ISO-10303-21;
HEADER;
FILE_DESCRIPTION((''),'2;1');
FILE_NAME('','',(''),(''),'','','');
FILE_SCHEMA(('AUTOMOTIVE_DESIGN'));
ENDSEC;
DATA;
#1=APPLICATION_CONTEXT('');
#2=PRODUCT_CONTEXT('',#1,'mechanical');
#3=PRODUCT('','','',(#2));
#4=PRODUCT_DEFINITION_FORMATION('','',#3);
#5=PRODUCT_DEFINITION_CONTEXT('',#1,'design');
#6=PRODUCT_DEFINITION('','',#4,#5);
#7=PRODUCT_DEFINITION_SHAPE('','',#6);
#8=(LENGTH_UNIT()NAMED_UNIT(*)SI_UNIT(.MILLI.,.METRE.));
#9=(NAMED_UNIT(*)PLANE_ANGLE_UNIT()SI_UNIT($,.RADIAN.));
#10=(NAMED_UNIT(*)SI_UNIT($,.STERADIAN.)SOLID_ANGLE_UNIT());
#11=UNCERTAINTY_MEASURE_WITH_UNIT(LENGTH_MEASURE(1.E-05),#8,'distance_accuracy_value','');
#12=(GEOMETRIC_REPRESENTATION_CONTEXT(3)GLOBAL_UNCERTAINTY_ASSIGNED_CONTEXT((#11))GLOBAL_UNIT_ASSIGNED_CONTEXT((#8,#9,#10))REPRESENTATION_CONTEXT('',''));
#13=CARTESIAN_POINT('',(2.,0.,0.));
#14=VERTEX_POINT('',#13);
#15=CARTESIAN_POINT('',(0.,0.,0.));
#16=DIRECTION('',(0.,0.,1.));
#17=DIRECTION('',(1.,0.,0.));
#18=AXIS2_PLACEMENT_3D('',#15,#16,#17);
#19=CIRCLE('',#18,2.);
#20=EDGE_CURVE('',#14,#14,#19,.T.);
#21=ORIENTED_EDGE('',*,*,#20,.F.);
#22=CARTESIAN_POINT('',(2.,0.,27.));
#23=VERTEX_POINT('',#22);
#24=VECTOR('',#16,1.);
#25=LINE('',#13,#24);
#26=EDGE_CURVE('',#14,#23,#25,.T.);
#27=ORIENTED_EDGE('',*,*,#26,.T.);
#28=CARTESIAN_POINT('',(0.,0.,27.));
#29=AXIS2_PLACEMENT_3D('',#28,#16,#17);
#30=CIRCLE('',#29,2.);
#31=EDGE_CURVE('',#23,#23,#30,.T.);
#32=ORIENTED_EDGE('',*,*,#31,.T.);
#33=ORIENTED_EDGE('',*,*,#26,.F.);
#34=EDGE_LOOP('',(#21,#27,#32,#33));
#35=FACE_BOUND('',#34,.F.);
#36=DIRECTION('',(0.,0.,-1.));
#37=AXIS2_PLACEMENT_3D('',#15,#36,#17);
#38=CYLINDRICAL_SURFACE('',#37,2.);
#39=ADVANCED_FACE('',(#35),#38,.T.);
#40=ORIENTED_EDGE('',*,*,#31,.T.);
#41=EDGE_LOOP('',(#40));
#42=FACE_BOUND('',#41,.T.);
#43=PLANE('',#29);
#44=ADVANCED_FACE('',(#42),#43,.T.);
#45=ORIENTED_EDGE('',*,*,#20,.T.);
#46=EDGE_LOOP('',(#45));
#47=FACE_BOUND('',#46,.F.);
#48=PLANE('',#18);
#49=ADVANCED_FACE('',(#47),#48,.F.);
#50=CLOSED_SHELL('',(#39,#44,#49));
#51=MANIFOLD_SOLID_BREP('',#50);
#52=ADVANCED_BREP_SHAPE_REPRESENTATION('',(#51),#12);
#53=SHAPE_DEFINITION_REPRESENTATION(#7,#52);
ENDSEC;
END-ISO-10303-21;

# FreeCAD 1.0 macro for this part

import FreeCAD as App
import Part
import Sketcher
from FreeCAD import Vector
Q = App.Units.Quantity

doc = App.newDocument("Part")
body = doc.addObject("PartDesign::Body", "Body")

# Sketch on XY plane
sketch1 = body.newObject("Sketcher::SketchObject", "Sketch")
sketch1.AttachmentSupport = (doc.getObject("XY_Plane"), [""])
sketch1.MapMode = "FlatFace"
sketch1.addGeometry(Part.Circle(Vector(0, 0, 0), Vector(0, 0, 1), 2), False)
sketch1.addConstraint(Sketcher.Constraint("Coincident", 0, 3, -1, 1))
sketch1.addConstraint(Sketcher.Constraint("Diameter", 0, Q("4 mm")))
pad1 = body.newObject("PartDesign::Pad", "Pad")
pad1.Profile = sketch1
pad1.Length = 27

doc.recompute()
